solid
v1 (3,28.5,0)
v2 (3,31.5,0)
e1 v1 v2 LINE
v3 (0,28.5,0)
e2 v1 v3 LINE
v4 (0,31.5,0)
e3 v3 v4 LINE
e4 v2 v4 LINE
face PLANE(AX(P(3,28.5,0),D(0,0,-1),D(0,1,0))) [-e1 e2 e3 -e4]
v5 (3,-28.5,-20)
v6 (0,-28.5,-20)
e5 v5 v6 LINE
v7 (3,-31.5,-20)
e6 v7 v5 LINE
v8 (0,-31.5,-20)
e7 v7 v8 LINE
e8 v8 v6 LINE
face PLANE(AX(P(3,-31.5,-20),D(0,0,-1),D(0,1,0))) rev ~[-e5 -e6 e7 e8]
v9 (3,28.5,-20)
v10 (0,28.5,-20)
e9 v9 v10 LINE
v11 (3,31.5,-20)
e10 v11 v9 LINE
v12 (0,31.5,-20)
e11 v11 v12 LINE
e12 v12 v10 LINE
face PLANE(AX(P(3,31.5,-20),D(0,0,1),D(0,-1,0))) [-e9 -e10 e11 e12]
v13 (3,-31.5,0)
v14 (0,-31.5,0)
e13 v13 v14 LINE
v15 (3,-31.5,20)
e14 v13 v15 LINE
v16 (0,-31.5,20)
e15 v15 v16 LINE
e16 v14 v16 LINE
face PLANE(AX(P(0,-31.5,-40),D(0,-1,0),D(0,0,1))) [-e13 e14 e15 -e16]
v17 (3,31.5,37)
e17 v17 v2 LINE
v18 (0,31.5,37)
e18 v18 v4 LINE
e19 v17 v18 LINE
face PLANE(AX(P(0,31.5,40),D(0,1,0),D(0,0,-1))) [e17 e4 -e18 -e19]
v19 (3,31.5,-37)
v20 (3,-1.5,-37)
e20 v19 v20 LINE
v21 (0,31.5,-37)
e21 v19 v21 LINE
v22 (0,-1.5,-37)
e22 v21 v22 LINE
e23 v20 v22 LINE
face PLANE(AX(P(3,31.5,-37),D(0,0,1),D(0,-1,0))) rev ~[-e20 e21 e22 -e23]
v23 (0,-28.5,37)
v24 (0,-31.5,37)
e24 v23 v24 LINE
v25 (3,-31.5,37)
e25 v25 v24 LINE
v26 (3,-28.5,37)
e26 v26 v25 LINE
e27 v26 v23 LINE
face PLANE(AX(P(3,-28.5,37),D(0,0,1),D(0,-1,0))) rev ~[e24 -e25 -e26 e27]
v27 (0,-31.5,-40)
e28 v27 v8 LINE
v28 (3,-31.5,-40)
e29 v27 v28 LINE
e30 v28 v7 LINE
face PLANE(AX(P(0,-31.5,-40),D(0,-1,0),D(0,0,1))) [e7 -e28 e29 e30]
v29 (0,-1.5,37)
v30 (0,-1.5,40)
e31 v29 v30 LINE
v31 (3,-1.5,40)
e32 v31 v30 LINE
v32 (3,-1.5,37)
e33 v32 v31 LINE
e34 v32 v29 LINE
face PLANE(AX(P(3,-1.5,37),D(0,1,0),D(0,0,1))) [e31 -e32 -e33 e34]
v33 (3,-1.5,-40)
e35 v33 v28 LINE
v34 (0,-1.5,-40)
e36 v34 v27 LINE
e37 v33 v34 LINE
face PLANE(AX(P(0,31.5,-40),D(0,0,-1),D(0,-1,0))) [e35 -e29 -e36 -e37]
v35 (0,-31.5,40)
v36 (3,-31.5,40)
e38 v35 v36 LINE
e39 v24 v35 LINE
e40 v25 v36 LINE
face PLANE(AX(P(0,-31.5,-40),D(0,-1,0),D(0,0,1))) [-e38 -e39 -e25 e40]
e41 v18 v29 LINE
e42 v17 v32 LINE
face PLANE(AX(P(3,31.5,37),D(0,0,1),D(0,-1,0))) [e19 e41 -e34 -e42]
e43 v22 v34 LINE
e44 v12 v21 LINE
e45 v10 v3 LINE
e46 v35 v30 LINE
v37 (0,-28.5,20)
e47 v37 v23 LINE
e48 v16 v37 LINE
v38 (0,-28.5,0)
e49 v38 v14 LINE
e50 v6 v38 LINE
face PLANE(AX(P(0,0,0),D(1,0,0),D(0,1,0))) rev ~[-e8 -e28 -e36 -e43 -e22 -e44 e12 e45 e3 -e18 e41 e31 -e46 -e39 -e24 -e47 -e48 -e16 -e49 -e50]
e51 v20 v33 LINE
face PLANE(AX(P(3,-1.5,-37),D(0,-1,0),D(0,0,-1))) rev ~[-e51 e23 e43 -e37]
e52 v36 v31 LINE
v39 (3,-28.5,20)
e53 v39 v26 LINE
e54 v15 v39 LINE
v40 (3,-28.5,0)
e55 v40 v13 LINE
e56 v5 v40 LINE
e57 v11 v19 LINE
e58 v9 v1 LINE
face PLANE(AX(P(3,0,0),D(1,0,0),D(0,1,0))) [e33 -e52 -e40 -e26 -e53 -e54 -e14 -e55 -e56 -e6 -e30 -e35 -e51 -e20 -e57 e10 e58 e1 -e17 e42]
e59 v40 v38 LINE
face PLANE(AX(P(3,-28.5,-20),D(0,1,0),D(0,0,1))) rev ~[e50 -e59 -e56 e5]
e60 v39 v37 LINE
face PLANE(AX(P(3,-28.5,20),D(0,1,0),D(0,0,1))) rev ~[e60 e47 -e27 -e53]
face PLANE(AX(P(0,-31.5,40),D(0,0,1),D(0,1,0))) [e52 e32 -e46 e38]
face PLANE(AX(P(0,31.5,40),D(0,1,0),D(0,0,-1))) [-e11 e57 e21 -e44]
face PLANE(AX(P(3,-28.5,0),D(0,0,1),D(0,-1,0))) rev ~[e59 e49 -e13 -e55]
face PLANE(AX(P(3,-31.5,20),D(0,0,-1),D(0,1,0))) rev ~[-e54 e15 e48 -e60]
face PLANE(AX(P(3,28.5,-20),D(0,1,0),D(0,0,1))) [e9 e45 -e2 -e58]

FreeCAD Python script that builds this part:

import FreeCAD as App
import Part
import Sketcher
from FreeCAD import Vector

doc = App.newDocument("Part")
body = doc.addObject("PartDesign::Body", "Body")

# Sketch on YZ plane
sketch1 = body.newObject("Sketcher::SketchObject", "Sketch")
sketch1.AttachmentSupport = (doc.getObject("YZ_Plane"), [""])
sketch1.MapMode = "FlatFace"
sketch1.addGeometry([
    Part.LineSegment(Vector(32, 40, 0), Vector(-32, 40, 0)),
    Part.LineSegment(Vector(-32, 40, 0), Vector(-32, -40, 0)),
    Part.LineSegment(Vector(-32, -40, 0), Vector(32, -40, 0)),
    Part.LineSegment(Vector(32, -40, 0), Vector(32, 40, 0)),
], False)
sketch1.addConstraint([
    Sketcher.Constraint("Coincident", 0, 2, 1, 1),
    Sketcher.Constraint("Coincident", 1, 2, 2, 1),
    Sketcher.Constraint("Coincident", 2, 2, 3, 1),
    Sketcher.Constraint("Coincident", 3, 2, 0, 1),
    Sketcher.Constraint("Horizontal", 0),
    Sketcher.Constraint("Vertical", 1),
    Sketcher.Constraint("Horizontal", 2),
    Sketcher.Constraint("Vertical", 3),
    Sketcher.Constraint("Symmetric", 0, 2, 2, 2, -1, 1),
    Sketcher.Constraint("DistanceX", 0, 2, 0, 1, 63.0),
    Sketcher.Constraint("DistanceY", 1, 2, 1, 1, 80.0),
])
pad1 = body.newObject("PartDesign::Pad", "Pad")
pad1.Profile = sketch1
pad1.Length = 3

# Sketch on YZ plane
sketch2 = body.newObject("Sketcher::SketchObject", "Sketch001")
sketch2.AttachmentSupport = (doc.getObject("YZ_Plane"), [""])
sketch2.MapMode = "FlatFace"
sketch2.AttachmentOffset = App.Placement(Vector(0, 0, 3), App.Rotation())
sketch2.addGeometry([
    Part.LineSegment(Vector(-1.5, -37, 0), Vector(-1.5, -40, 0)),  # 0
    Part.LineSegment(Vector(-1.5, -40, 0), Vector(31.5, -40, 0)),  # 1
    Part.LineSegment(Vector(31.5, -40, 0), Vector(31.5, -37, 0)),  # 2
    Part.LineSegment(Vector(31.5, -37, 0), Vector(-1.5, -37, 0)),  # 3
    Part.LineSegment(Vector(-31.5, 37, 0), Vector(-31.5, 20, 0)),  # 4
    Part.LineSegment(Vector(-31.5, 20, 0), Vector(-28.5, 20, 0)),  # 5
    Part.LineSegment(Vector(-28.5, 20, 0), Vector(-28.5, 37, 0)),  # 6
    Part.LineSegment(Vector(-28.5, 37, 0), Vector(-31.5, 37, 0)),  # 7
    Part.LineSegment(Vector(-31.5, 0, 0), Vector(-31.5, -20, 0)),  # 8
    Part.LineSegment(Vector(-31.5, -20, 0), Vector(-28.5, -20, 0)),  # 9
    Part.LineSegment(Vector(-28.5, -20, 0), Vector(-28.5, 0, 0)),  # 10
    Part.LineSegment(Vector(-28.5, 0, 0), Vector(-31.5, 0, 0)),  # 11
], False)
sketch2.addConstraint([
    Sketcher.Constraint("Coincident", 0, 2, 1, 1),
    Sketcher.Constraint("Coincident", 1, 2, 2, 1),
    Sketcher.Constraint("Coincident", 2, 2, 3, 1),
    Sketcher.Constraint("Coincident", 3, 2, 0, 1),
    Sketcher.Constraint("Coincident", 4, 2, 5, 1),
    Sketcher.Constraint("Coincident", 5, 2, 6, 1),
    Sketcher.Constraint("Coincident", 6, 2, 7, 1),
    Sketcher.Constraint("Coincident", 7, 2, 4, 1),
    Sketcher.Constraint("Coincident", 8, 2, 9, 1),
    Sketcher.Constraint("Coincident", 9, 2, 10, 1),
    Sketcher.Constraint("Coincident", 10, 2, 11, 1),
    Sketcher.Constraint("Coincident", 11, 2, 8, 1),
    Sketcher.Constraint("Vertical", 0),
    Sketcher.Constraint("Horizontal", 1),
    Sketcher.Constraint("Vertical", 2),
    Sketcher.Constraint("Horizontal", 3),
    Sketcher.Constraint("Vertical", 4),
    Sketcher.Constraint("Horizontal", 5),
    Sketcher.Constraint("Vertical", 6),
    Sketcher.Constraint("Horizontal", 7),
    Sketcher.Constraint("Vertical", 8),
    Sketcher.Constraint("Horizontal", 9),
    Sketcher.Constraint("Vertical", 10),
    Sketcher.Constraint("Horizontal", 11),
    Sketcher.Constraint("Symmetric", 2, 2, 7, 2, -1, 1),
    Sketcher.Constraint("Symmetric", 4, 2, 8, 2, -1),
    Sketcher.Constraint("PointOnObject", 10, 2, -1),
    Sketcher.Constraint("Vertical", 6, 2, 9, 2),
    Sketcher.Constraint("Equal", 11, 0),
    Sketcher.Constraint("DistanceX", 5, 1, 5, 2, 3.0),
    Sketcher.Constraint("DistanceY", 4, 2, 4, 1, 17.0),
    Sketcher.Constraint("DistanceY", 8, 2, 8, 1, 20.0),
    Sketcher.Constraint("DistanceX", 4, 2, 3, 2, 30.0),
    Sketcher.Constraint("DistanceX", 1, 1, 1, 2, 33.0),
])
pocket1 = body.newObject("PartDesign::Pocket", "Pocket")
pocket1.Profile = sketch2
pocket1.Type = "ThroughAll"

# Sketch on YZ plane
sketch3 = body.newObject("Sketcher::SketchObject", "Sketch002")
sketch3.AttachmentSupport = (doc.getObject("YZ_Plane"), [""])
sketch3.MapMode = "FlatFace"
sketch3.AttachmentOffset = App.Placement(Vector(0, 0, 3), App.Rotation())
sketch3.addGeometry([
    Part.LineSegment(Vector(31.5, 37, 0), Vector(31.5, 40, 0)),
    Part.LineSegment(Vector(31.5, 40, 0), Vector(-1.5, 40, 0)),
    Part.LineSegment(Vector(-1.5, 40, 0), Vector(-1.5, 37, 0)),
    Part.LineSegment(Vector(-1.5, 37, 0), Vector(31.5, 37, 0)),
], False)
sketch3.addConstraint([
    Sketcher.Constraint("Coincident", 0, 2, 1, 1),
    Sketcher.Constraint("Coincident", 1, 2, 2, 1),
    Sketcher.Constraint("Coincident", 2, 2, 3, 1),
    Sketcher.Constraint("Coincident", 3, 2, 0, 1),
    Sketcher.Constraint("Vertical", 0),
    Sketcher.Constraint("Horizontal", 1),
    Sketcher.Constraint("Vertical", 2),
    Sketcher.Constraint("Horizontal", 3),
    Sketcher.Constraint("DistanceX", 1, 2, 1, 1, 33.0),
    Sketcher.Constraint("DistanceY", 0, 1, 0, 2, 3.0),
    Sketcher.Constraint("DistanceY", -1, 1, 0, 2, 40.0),
    Sketcher.Constraint("DistanceX", -1, 1, 0, 2, 31.5),
])
pocket2 = body.newObject("PartDesign::Pocket", "Pocket001")
pocket2.Profile = sketch3
pocket2.Type = "ThroughAll"

# Sketch on YZ plane
sketch4 = body.newObject("Sketcher::SketchObject", "Sketch003")
sketch4.AttachmentSupport = (doc.getObject("YZ_Plane"), [""])
sketch4.MapMode = "FlatFace"
sketch4.AttachmentOffset = App.Placement(Vector(0, 0, 3), App.Rotation())
sketch4.addGeometry([
    Part.LineSegment(Vector(28.5, -20, 0), Vector(31.5, -20, 0)),
    Part.LineSegment(Vector(31.5, -20, 0), Vector(31.5, 0, 0)),
    Part.LineSegment(Vector(31.5, 0, 0), Vector(28.5, 0, 0)),
    Part.LineSegment(Vector(28.5, 0, 0), Vector(28.5, -20, 0)),
], False)
sketch4.addConstraint([
    Sketcher.Constraint("Coincident", 0, 2, 1, 1),
    Sketcher.Constraint("Coincident", 1, 2, 2, 1),
    Sketcher.Constraint("Coincident", 2, 2, 3, 1),
    Sketcher.Constraint("Coincident", 3, 2, 0, 1),
    Sketcher.Constraint("Horizontal", 0),
    Sketcher.Constraint("Vertical", 1),
    Sketcher.Constraint("Horizontal", 2),
    Sketcher.Constraint("Vertical", 3),
    Sketcher.Constraint("PointOnObject", 1, 2, -1),
    Sketcher.Constraint("DistanceX", 0, 1, 0, 2, 3.0),
    Sketcher.Constraint("DistanceY", 1, 1, 1, 2, 20.0),
    Sketcher.Constraint("DistanceX", -1, 1, 0, 2, 31.5),
])
pocket3 = body.newObject("PartDesign::Pocket", "Pocket002")
pocket3.Profile = sketch4
pocket3.Type = "ThroughAll"

doc.recompute()
